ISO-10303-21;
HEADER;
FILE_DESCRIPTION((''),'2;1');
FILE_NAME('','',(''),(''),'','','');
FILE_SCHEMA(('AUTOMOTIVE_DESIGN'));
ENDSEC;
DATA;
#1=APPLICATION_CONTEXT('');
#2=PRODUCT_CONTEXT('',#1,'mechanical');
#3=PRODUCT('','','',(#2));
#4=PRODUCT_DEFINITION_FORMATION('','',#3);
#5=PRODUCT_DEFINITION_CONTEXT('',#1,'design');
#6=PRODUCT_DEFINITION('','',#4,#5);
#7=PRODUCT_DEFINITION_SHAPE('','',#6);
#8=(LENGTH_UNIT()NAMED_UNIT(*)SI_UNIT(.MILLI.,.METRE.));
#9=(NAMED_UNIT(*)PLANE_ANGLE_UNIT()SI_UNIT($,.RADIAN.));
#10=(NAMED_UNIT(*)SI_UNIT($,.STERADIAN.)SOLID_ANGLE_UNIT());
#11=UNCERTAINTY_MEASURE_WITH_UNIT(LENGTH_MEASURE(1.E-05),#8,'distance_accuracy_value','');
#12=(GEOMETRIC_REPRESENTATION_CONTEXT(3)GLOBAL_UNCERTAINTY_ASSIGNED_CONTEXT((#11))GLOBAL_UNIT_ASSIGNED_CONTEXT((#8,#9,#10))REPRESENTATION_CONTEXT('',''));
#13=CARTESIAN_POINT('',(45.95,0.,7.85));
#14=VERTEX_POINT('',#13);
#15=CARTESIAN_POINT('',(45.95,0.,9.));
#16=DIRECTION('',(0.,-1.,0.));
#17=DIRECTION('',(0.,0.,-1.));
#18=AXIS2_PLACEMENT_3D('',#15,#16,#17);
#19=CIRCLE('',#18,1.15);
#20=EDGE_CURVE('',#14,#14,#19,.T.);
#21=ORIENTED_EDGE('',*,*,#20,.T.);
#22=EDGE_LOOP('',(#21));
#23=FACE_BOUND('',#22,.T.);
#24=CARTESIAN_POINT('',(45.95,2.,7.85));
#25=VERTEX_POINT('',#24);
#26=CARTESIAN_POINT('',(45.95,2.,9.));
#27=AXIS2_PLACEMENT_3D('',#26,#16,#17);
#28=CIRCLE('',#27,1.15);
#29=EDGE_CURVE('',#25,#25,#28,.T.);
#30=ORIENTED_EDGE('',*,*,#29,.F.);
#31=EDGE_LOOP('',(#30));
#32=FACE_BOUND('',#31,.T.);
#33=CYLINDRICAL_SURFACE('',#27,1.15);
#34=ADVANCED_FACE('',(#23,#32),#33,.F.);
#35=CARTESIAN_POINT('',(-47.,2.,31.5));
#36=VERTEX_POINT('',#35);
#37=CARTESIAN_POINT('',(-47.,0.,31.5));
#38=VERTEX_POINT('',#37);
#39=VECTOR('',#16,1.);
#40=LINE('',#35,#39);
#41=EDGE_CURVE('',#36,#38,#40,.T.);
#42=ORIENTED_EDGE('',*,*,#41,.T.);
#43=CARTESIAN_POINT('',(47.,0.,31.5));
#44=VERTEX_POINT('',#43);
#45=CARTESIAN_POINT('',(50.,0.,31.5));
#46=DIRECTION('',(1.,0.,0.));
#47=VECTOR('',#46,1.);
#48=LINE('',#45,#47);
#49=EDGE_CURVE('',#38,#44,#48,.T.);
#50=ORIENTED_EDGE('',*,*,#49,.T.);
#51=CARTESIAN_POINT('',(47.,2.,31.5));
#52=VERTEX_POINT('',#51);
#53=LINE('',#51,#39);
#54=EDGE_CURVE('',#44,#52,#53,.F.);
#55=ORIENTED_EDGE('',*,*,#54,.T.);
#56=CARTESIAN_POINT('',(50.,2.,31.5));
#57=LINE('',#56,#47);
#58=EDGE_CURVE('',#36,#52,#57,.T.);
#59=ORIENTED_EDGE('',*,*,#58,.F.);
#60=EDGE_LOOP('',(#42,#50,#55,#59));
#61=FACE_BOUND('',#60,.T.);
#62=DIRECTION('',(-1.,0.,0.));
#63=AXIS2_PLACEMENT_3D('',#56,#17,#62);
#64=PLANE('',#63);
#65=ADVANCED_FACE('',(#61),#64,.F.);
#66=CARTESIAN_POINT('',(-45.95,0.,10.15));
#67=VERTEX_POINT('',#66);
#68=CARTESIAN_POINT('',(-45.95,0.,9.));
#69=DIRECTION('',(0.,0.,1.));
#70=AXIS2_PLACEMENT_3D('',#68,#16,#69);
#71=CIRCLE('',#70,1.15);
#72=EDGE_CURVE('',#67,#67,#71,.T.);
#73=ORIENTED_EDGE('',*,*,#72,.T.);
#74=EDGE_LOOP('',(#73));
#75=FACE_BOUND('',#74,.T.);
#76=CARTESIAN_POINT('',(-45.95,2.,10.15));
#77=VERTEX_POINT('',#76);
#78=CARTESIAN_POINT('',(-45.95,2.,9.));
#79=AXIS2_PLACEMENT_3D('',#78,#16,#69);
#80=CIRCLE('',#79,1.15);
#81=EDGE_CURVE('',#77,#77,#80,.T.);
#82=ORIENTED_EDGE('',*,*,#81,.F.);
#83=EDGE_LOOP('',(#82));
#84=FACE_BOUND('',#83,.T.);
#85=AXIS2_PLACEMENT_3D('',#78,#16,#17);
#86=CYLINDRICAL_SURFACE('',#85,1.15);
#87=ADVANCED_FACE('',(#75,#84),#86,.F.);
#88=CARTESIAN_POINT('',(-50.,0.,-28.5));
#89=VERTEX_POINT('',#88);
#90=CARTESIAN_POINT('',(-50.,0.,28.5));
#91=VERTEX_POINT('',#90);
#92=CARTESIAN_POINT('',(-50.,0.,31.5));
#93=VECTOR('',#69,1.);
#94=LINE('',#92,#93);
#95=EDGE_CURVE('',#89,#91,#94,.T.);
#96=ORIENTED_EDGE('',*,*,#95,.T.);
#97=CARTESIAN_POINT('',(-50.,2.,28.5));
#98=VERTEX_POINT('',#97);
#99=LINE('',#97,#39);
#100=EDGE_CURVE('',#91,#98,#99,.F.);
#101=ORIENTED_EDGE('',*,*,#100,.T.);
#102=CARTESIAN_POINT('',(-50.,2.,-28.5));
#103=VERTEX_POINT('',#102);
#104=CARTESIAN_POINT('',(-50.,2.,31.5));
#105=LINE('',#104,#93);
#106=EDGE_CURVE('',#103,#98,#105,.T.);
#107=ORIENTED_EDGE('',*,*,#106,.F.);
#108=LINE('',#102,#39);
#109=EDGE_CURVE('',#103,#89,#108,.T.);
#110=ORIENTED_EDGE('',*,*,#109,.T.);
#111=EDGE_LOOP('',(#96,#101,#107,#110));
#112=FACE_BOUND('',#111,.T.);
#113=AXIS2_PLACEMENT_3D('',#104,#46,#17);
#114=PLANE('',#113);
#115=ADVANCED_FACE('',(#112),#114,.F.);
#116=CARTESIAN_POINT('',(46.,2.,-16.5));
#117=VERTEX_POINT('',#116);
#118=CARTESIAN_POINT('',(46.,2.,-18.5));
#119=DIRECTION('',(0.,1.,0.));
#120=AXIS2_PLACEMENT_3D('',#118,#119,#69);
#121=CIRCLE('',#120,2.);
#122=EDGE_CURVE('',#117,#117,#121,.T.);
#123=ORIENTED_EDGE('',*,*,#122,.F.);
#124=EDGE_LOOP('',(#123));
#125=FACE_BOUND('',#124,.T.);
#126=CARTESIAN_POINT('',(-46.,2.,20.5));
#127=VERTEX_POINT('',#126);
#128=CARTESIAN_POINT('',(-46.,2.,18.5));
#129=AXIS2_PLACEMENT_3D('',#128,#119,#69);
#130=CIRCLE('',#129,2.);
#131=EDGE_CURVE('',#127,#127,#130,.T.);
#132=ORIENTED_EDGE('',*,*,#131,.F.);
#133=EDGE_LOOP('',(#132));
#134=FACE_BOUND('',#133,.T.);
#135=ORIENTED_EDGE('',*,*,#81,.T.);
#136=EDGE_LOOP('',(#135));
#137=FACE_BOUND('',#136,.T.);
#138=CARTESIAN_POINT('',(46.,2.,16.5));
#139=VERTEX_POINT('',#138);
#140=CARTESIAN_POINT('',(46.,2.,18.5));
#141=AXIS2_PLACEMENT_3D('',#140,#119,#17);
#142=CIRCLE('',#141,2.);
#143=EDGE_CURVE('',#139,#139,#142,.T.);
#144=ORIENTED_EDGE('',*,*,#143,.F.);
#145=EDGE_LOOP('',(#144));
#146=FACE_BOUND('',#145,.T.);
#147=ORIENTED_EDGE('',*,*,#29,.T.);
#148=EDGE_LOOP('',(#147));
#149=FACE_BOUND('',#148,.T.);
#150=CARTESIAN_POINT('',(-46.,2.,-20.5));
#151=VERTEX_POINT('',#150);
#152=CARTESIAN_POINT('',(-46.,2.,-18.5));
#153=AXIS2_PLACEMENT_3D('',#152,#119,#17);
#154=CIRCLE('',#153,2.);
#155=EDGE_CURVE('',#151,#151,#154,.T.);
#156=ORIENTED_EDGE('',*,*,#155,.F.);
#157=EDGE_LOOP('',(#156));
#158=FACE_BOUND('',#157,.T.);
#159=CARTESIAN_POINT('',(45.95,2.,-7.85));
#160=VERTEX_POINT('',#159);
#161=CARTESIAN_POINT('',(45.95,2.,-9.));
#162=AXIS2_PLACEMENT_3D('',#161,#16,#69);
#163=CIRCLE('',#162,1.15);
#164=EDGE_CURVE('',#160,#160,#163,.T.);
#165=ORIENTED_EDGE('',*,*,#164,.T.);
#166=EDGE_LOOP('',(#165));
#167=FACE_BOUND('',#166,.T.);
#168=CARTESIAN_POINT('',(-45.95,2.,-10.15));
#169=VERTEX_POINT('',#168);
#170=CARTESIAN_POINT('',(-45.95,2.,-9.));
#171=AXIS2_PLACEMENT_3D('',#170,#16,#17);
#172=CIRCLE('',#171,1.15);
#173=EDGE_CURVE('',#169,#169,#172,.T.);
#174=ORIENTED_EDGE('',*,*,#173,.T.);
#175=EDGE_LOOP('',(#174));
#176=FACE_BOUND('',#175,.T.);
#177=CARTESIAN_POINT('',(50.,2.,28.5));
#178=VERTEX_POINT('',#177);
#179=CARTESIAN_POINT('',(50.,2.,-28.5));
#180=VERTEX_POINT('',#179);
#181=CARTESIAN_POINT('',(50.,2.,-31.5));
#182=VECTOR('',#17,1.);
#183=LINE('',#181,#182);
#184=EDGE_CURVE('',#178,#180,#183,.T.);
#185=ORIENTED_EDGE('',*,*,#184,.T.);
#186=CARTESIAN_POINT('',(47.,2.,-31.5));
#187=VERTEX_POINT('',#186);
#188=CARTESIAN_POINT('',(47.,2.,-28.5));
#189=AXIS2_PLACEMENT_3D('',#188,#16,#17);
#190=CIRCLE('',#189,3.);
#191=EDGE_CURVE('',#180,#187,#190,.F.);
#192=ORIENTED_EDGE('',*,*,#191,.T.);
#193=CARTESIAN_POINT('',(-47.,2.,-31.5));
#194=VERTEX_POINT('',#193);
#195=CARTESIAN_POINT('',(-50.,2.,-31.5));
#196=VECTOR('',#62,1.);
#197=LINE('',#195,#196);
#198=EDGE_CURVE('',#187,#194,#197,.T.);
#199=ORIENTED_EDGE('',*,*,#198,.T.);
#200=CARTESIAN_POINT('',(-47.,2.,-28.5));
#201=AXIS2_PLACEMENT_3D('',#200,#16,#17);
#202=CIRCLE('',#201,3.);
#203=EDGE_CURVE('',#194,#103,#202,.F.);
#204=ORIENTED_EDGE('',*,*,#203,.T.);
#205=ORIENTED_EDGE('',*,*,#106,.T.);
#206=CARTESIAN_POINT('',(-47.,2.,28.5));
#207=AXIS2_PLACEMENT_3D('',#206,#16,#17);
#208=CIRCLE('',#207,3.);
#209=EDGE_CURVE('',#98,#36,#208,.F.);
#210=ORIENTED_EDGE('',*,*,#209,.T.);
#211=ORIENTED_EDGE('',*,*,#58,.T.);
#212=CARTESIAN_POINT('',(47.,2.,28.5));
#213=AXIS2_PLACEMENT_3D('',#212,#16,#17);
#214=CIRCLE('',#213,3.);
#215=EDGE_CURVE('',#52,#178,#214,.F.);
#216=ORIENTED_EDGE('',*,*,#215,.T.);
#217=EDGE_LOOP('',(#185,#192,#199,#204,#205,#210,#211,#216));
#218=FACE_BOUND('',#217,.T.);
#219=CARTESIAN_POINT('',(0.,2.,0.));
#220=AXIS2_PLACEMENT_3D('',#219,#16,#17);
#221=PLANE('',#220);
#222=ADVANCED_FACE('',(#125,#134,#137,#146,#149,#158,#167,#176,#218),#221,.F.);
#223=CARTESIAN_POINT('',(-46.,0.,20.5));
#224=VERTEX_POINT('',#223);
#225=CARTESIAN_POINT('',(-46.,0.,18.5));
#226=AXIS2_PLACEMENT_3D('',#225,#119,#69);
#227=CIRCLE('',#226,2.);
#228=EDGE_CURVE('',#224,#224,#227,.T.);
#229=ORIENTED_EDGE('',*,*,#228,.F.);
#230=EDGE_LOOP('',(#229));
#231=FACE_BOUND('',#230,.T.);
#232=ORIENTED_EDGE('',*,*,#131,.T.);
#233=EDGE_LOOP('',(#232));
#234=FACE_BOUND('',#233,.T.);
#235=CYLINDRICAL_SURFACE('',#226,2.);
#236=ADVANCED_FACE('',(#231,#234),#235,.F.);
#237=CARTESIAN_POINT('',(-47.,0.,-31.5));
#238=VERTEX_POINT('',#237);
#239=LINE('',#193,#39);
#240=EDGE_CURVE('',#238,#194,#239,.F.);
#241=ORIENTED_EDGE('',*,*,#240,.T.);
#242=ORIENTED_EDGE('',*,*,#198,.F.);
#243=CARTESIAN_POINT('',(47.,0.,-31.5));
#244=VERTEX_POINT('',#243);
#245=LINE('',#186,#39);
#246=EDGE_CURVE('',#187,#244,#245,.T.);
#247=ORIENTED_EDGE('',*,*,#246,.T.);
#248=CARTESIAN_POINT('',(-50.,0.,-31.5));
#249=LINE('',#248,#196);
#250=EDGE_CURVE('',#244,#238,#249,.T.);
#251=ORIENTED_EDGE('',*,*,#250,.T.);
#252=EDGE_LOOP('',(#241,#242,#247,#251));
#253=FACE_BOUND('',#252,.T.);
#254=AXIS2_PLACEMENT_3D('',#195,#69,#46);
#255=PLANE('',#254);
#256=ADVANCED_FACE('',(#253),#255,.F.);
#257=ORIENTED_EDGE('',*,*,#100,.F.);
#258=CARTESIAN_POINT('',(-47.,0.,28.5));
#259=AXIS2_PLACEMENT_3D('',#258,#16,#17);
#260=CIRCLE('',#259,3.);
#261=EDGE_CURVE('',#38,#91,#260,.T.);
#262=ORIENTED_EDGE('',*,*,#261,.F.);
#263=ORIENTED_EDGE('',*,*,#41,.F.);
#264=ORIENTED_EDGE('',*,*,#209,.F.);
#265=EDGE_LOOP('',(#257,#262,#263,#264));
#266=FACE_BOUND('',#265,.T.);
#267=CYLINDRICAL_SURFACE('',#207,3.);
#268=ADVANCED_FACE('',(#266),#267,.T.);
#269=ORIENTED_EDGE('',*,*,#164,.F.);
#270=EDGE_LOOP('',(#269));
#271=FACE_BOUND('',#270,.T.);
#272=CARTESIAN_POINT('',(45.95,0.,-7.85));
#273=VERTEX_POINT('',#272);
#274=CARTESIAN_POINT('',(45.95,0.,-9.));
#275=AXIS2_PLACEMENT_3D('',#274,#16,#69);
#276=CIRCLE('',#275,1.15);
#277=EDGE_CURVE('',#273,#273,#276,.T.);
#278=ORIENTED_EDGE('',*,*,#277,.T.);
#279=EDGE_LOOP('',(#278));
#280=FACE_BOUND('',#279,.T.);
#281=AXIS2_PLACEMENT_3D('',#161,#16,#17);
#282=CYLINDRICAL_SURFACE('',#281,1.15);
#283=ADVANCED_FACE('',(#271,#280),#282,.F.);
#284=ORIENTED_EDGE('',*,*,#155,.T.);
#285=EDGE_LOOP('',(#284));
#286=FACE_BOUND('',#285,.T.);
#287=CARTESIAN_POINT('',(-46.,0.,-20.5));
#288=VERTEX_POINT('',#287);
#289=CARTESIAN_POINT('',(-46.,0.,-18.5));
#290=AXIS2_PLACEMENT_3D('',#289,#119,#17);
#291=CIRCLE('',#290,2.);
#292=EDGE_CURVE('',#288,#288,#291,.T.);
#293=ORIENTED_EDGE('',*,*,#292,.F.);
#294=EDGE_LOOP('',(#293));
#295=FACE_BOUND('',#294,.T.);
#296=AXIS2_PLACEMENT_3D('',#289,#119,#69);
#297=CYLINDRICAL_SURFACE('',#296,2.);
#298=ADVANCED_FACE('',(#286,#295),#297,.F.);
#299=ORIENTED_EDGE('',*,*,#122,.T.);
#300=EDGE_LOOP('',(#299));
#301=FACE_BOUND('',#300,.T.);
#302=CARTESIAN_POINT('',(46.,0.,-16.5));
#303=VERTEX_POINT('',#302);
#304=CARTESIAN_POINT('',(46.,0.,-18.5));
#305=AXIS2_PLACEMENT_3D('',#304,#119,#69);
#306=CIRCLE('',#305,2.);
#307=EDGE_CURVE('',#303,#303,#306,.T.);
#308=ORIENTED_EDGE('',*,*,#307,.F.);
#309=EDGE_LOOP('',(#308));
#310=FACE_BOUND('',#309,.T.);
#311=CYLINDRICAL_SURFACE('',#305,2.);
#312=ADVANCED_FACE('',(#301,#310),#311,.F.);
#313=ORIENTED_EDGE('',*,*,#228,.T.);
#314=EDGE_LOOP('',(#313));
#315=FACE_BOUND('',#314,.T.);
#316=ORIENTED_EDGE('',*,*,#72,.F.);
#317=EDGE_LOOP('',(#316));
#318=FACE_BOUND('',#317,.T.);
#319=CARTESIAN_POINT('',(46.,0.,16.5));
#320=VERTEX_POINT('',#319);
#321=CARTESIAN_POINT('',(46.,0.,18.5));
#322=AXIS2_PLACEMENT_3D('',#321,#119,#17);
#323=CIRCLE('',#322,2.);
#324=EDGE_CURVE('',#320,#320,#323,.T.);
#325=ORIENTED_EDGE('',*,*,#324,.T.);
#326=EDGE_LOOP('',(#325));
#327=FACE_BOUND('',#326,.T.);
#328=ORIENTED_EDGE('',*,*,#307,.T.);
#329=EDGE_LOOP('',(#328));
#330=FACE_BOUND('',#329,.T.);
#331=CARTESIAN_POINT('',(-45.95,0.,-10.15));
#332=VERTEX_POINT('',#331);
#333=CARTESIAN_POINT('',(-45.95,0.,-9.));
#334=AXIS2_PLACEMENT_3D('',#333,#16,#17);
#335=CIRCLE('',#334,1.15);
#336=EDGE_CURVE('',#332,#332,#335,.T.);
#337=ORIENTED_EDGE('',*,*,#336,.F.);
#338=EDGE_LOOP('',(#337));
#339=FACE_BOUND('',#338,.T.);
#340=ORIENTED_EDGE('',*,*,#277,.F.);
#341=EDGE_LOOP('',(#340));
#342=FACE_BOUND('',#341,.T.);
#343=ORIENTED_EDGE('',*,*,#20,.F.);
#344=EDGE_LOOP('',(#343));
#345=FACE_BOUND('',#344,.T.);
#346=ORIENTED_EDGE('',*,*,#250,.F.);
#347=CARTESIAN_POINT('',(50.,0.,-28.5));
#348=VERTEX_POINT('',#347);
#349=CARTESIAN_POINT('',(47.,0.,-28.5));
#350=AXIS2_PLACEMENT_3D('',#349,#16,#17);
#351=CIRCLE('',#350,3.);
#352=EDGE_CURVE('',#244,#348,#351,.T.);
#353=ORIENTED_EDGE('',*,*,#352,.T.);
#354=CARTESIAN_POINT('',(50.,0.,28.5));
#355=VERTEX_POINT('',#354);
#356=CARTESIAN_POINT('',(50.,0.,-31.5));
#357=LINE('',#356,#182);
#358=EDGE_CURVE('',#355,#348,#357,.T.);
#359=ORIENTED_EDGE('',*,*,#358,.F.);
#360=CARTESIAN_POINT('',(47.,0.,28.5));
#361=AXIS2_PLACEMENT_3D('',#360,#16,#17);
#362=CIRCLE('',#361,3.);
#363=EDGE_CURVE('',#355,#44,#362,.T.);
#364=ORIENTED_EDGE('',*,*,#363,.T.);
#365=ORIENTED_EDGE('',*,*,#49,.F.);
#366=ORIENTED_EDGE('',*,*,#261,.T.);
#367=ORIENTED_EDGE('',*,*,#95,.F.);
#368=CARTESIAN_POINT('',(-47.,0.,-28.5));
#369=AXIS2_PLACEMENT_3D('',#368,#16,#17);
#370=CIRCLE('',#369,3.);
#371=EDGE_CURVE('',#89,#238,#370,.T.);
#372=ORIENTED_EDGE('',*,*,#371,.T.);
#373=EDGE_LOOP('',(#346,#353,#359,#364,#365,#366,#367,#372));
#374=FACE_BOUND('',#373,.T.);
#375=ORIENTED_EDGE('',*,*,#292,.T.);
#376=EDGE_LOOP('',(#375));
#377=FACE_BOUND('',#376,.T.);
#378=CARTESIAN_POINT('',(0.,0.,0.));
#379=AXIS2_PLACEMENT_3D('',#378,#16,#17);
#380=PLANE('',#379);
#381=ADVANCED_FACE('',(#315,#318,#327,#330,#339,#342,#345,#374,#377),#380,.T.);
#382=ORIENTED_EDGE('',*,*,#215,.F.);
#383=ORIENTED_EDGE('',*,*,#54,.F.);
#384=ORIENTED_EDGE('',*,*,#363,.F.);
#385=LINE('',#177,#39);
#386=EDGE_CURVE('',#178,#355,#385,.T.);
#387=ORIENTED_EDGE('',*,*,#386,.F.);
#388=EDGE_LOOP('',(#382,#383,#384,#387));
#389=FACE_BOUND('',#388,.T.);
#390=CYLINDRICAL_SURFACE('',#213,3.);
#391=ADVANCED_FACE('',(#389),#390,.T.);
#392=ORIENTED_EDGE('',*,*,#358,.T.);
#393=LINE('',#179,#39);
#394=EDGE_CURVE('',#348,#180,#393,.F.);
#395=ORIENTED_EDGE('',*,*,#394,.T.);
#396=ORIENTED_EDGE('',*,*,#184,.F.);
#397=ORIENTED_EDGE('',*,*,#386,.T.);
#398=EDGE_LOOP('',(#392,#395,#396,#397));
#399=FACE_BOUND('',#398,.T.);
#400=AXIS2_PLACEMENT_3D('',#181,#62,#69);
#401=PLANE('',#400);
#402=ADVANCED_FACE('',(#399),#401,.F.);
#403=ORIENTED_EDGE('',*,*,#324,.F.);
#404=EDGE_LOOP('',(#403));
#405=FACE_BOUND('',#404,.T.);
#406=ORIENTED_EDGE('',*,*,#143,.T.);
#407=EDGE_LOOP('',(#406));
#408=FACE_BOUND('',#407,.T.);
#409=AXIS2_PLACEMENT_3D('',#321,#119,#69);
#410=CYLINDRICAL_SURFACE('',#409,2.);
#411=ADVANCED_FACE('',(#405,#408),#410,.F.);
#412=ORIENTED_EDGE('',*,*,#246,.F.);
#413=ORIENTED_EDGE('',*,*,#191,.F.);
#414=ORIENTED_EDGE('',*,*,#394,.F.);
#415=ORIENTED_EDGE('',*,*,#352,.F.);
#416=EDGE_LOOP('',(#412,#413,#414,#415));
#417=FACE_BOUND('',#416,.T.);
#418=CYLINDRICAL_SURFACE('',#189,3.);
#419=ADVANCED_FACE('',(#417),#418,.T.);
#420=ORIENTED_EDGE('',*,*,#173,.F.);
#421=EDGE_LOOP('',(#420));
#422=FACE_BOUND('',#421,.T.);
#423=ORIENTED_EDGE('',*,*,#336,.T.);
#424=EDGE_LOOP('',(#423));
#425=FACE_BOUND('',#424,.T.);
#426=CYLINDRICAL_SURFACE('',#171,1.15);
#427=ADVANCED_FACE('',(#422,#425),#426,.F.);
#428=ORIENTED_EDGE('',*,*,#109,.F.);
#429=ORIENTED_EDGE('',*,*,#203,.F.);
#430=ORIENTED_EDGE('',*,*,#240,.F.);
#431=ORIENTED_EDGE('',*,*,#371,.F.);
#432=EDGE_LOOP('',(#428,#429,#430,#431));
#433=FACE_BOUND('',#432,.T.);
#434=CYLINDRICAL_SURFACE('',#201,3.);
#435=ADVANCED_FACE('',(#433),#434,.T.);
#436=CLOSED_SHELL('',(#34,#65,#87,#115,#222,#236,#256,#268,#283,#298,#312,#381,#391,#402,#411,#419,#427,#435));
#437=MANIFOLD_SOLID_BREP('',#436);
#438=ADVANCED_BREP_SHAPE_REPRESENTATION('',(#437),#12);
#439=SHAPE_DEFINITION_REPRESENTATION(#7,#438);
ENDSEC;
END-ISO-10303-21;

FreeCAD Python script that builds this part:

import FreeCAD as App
import Part
import Sketcher
Q = App.Units.Quantity


def edges_at(feature, points):
    """Names of the edges that pass closest to the given points."""
    edges = feature.Shape.Edges
    near = lambda p: min(range(len(edges)), key=lambda i: edges[i].distToShape(Part.Vertex(*p))[0])
    return sorted({f"Edge{near(p) + 1}" for p in points})

doc = App.newDocument("Part")
body = doc.addObject("PartDesign::Body", "Body")

# Sketch on XZ plane
sketch1 = body.newObject("Sketcher::SketchObject", "Sketch")
sketch1.AttachmentSupport = (doc.getObject("XZ_Plane"), [""])
sketch1.MapMode = "FlatFace"
sketch1.addGeometry(Part.LineSegment(App.Vector(-50, -32, 0), App.Vector(-50, 32, 0)), False)
sketch1.addGeometry(Part.LineSegment(App.Vector(-50, 32, 0), App.Vector(50, 32, 0)), False)
sketch1.addGeometry(Part.LineSegment(App.Vector(50, 32, 0), App.Vector(50, -32, 0)), False)
sketch1.addGeometry(Part.LineSegment(App.Vector(50, -32, 0), App.Vector(-50, -32, 0)), False)
sketch1.addConstraint(Sketcher.Constraint("Coincident", 0, 2, 1, 1))
sketch1.addConstraint(Sketcher.Constraint("Coincident", 1, 2, 2, 1))
sketch1.addConstraint(Sketcher.Constraint("Coincident", 2, 2, 3, 1))
sketch1.addConstraint(Sketcher.Constraint("Coincident", 3, 2, 0, 1))
sketch1.addConstraint(Sketcher.Constraint("Vertical", 0))
sketch1.addConstraint(Sketcher.Constraint("Horizontal", 1))
sketch1.addConstraint(Sketcher.Constraint("Vertical", 2))
sketch1.addConstraint(Sketcher.Constraint("Horizontal", 3))
sketch1.addConstraint(Sketcher.Constraint("Symmetric", 0, 2, 2, 2, -1, 1))
sketch1.addConstraint(Sketcher.Constraint("DistanceX", 1, 1, 1, 2, Q("100 mm")))
sketch1.addConstraint(Sketcher.Constraint("DistanceY", 0, 1, 0, 2, Q("63 mm")))
pad1 = body.newObject("PartDesign::Pad", "Pad")
pad1.Profile = sketch1
pad1.Length = 2
pad1.Reversed = True

# Sketch on XZ plane
sketch2 = body.newObject("Sketcher::SketchObject", "Sketch001")
sketch2.AttachmentSupport = (doc.getObject("XZ_Plane"), [""])
sketch2.MapMode = "FlatFace"
sketch2.AttachmentOffset = App.Placement(App.Vector(0, 0, -2), App.Rotation())
sketch2.addGeometry(Part.Circle(App.Vector(46, -18.5, 0), App.Vector(0, 0, 1), 2), False)
sketch2.addGeometry(Part.Circle(App.Vector(46, 18.5, 0), App.Vector(0, 0, 1), 2), False)
sketch2.addGeometry(Part.Circle(App.Vector(-46, 18.5, 0), App.Vector(0, 0, 1), 2), False)
sketch2.addGeometry(Part.Circle(App.Vector(-46, -18.5, 0), App.Vector(0, 0, 1), 2), False)
sketch2.addConstraint(Sketcher.Constraint("Equal", 0, 1))
sketch2.addConstraint(Sketcher.Constraint("Equal", 1, 2))
sketch2.addConstraint(Sketcher.Constraint("Equal", 2, 3))
sketch2.addConstraint(Sketcher.Constraint("Symmetric", 0, 3, 2, 3, -1, 1))
sketch2.addConstraint(Sketcher.Constraint("Symmetric", 1, 3, 3, 3, -1, 1))
sketch2.addConstraint(Sketcher.Constraint("Symmetric", 1, 3, 2, 3, -2))
sketch2.addConstraint(Sketcher.Constraint("Diameter", 0, Q("4 mm")))
sketch2.addConstraint(Sketcher.Constraint("DistanceX", -1, 1, 0, 3, Q("46 mm")))
sketch2.addConstraint(Sketcher.Constraint("DistanceY", 0, 3, 1, 3, Q("37 mm")))
pocket1 = body.newObject("PartDesign::Pocket", "Pocket")
pocket1.Profile = sketch2
pocket1.Type = "ThroughAll"
pocket1.Reversed = True
doc.recompute()

fillet = body.newObject("PartDesign::Fillet", "Fillet")
fillet.Base = (pocket1, edges_at(pocket1, [
    (-50, 1, -31.5),
    (50, 1, -31.5),
    (50, 1, 31.5),
    (-50, 1, 31.5),
]))
fillet.Radius = 3

# Sketch on XZ plane
sketch3 = body.newObject("Sketcher::SketchObject", "Sketch002")
sketch3.AttachmentSupport = (doc.getObject("XZ_Plane"), [""])
sketch3.MapMode = "FlatFace"
sketch3.addGeometry(Part.Circle(App.Vector(46, 9, 0), App.Vector(0, 0, 1), 1.1), False)
sketch3.addGeometry(Part.Circle(App.Vector(46, -9, 0), App.Vector(0, 0, 1), 1.1), False)
sketch3.addGeometry(Part.Circle(App.Vector(-46, -9, 0), App.Vector(0, 0, 1), 1.1), False)
sketch3.addGeometry(Part.Circle(App.Vector(-46, 9, 0), App.Vector(0, 0, 1), 1.1), False)
sketch3.addConstraint(Sketcher.Constraint("Equal", 0, 1))
sketch3.addConstraint(Sketcher.Constraint("Equal", 1, 2))
sketch3.addConstraint(Sketcher.Constraint("Equal", 2, 3))
sketch3.addConstraint(Sketcher.Constraint("Symmetric", 0, 3, 2, 3, -1, 1))
sketch3.addConstraint(Sketcher.Constraint("Symmetric", 1, 3, 3, 3, -1, 1))
sketch3.addConstraint(Sketcher.Constraint("Symmetric", 1, 3, 2, 3, -2))
sketch3.addConstraint(Sketcher.Constraint("Diameter", 0, Q("2.3 mm")))
sketch3.addConstraint(Sketcher.Constraint("DistanceY", -1, 1, 0, 3, Q("9 mm")))
sketch3.addConstraint(Sketcher.Constraint("DistanceX", 2, 3, 1, 3, Q("91.9 mm")))
pocket2 = body.newObject("PartDesign::Pocket", "Pocket001")
pocket2.Profile = sketch3
pocket2.Type = "ThroughAll"

doc.recompute()
